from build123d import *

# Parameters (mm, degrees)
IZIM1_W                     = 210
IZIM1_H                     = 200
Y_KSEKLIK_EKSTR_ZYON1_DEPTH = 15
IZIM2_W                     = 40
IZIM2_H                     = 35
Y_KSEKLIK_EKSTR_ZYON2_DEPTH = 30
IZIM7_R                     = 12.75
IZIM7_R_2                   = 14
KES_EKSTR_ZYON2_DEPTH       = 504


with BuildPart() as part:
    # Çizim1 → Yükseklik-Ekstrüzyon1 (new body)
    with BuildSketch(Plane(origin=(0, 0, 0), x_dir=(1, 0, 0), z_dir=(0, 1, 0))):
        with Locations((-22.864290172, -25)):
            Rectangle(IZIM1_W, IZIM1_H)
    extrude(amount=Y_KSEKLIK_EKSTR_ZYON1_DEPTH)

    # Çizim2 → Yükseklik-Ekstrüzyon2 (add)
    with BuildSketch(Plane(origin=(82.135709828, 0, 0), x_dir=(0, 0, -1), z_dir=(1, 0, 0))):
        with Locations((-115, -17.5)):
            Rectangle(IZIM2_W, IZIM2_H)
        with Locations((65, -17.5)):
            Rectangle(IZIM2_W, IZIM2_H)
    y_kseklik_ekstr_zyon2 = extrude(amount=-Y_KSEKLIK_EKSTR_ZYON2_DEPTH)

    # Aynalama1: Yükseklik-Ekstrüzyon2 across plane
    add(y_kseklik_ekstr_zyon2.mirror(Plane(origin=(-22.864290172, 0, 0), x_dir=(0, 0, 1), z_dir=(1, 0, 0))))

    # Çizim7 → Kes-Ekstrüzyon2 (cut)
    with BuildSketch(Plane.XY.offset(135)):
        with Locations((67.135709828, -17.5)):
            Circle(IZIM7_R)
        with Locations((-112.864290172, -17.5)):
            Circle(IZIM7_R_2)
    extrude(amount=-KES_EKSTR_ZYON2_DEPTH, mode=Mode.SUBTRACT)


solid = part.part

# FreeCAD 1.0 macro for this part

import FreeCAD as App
import Part
import Sketcher

V = App.Vector
Q = App.Units.Quantity


def add_polygon(sketch, points):
    """Adds a closed chain of lines whose ends are joined by coincident constraints."""
    first, n = sketch.GeometryCount, len(points)
    for a, b in zip(points, points[1:] + points[:1]):
        sketch.addGeometry(Part.LineSegment(App.Vector(*a, 0), App.Vector(*b, 0)), False)
    for i in range(n):
        sketch.addConstraint(Sketcher.Constraint("Coincident", first + i, 2, first + (i + 1) % n, 1))

doc = App.newDocument("Part")
body = doc.addObject("PartDesign::Body", "Body")

# Sketch on XZ plane
sketch1 = body.newObject("Sketcher::SketchObject", "Sketch")
sketch1.AttachmentSupport = (doc.getObject("XZ_Plane"), [""])
sketch1.MapMode = "FlatFace"
add_polygon(sketch1, [(-127.86429, -75), (-127.86429, 125), (82.13571, 125), (82.13571, -75)])  # lines 0-3
sketch1.addConstraint(Sketcher.Constraint("Vertical", 0))
sketch1.addConstraint(Sketcher.Constraint("Horizontal", 1))
sketch1.addConstraint(Sketcher.Constraint("Vertical", 2))
sketch1.addConstraint(Sketcher.Constraint("Horizontal", 3))
sketch1.addConstraint(Sketcher.Constraint("DistanceX", 1, 1, 1, 2, Q("210 mm")))
sketch1.addConstraint(Sketcher.Constraint("DistanceY", 0, 1, 0, 2, Q("200 mm")))
sketch1.addConstraint(Sketcher.Constraint("DistanceY", -1, 1, 0, 2, Q("125 mm")))
sketch1.addConstraint(Sketcher.Constraint("DistanceX", 0, 2, -1, 1, Q("127.86429 mm")))
pad1 = body.newObject("PartDesign::Pad", "Pad")
pad1.Profile = sketch1
pad1.Length = 15
pad1.Reversed = True

# Sketch on YZ plane
sketch2 = body.newObject("Sketcher::SketchObject", "Sketch001")
sketch2.AttachmentSupport = (doc.getObject("YZ_Plane"), [""])
sketch2.MapMode = "FlatFace"
sketch2.AttachmentOffset = App.Placement(V(0, 0, 82.13571), App.Rotation())
add_polygon(sketch2, [(0, 135), (-35, 135), (-35, 95), (0, 95)])  # lines 0-3
add_polygon(sketch2, [(0, -45), (-35, -45), (-35, -85), (0, -85)])  # lines 4-7
sketch2.addConstraint(Sketcher.Constraint("Horizontal", 0))
sketch2.addConstraint(Sketcher.Constraint("Vertical", 1))
sketch2.addConstraint(Sketcher.Constraint("Horizontal", 2))
sketch2.addConstraint(Sketcher.Constraint("Vertical", 3))
sketch2.addConstraint(Sketcher.Constraint("Horizontal", 4))
sketch2.addConstraint(Sketcher.Constraint("Vertical", 5))
sketch2.addConstraint(Sketcher.Constraint("Horizontal", 6))
sketch2.addConstraint(Sketcher.Constraint("Vertical", 7))
sketch2.addConstraint(Sketcher.Constraint("PointOnObject", 2, 2, -2))
sketch2.addConstraint(Sketcher.Constraint("PointOnObject", 6, 2, -2))
sketch2.addConstraint(Sketcher.Constraint("Vertical", 1, 2, 4, 2))
sketch2.addConstraint(Sketcher.Constraint("Equal", 3, 5))
sketch2.addConstraint(Sketcher.Constraint("DistanceX", 0, 2, 0, 1, Q("35 mm")))
sketch2.addConstraint(Sketcher.Constraint("DistanceY", 1, 2, 1, 1, Q("40 mm")))
sketch2.addConstraint(Sketcher.Constraint("DistanceY", -1, 1, 0, 2, Q("135 mm")))
sketch2.addConstraint(Sketcher.Constraint("DistanceY", 4, 2, -1, 1, Q("45 mm")))
pad2 = body.newObject("PartDesign::Pad", "Pad001")
pad2.Profile = sketch2
pad2.Length = 30
pad2.Reversed = True
doc.recompute()

datumplane = body.newObject("PartDesign::Plane", "DatumPlane")
datumplane.AttachmentSupport = (doc.getObject("YZ_Plane"), [""])
datumplane.MapMode = "FlatFace"
datumplane.AttachmentOffset = App.Placement(V(0, 0, -22.86429), App.Rotation())
mirrored = body.newObject("PartDesign::Mirrored", "Mirrored")
mirrored.Originals = [pad2]
mirrored.MirrorPlane = (datumplane, [""])
body.Tip = mirrored

# Sketch on XY plane
sketch3 = body.newObject("Sketcher::SketchObject", "Sketch002")
sketch3.AttachmentSupport = (doc.getObject("XY_Plane"), [""])
sketch3.MapMode = "FlatFace"
sketch3.AttachmentOffset = App.Placement(V(0, 0, 135), App.Rotation())
sketch3.addGeometry(Part.Circle(V(67.13571, -17.5, 0), V(0, 0, 1), 12.75), False)
sketch3.addGeometry(Part.Circle(V(-112.86429, -17.5, 0), V(0, 0, 1), 14), False)
sketch3.addConstraint(Sketcher.Constraint("Horizontal", 0, 3, 1, 3))
sketch3.addConstraint(Sketcher.Constraint("Diameter", 1, Q("28 mm")))
sketch3.addConstraint(Sketcher.Constraint("Diameter", 0, Q("25.5 mm")))
sketch3.addConstraint(Sketcher.Constraint("DistanceX", 1, 3, 0, 3, Q("180 mm")))
sketch3.addConstraint(Sketcher.Constraint("DistanceY", 0, 3, -1, 1, Q("17.5 mm")))
sketch3.addConstraint(Sketcher.Constraint("DistanceX", -1, 1, 0, 3, Q("67.13571 mm")))
pocket1 = body.newObject("PartDesign::Pocket", "Pocket")
pocket1.Profile = sketch3
pocket1.Length = 504

doc.recompute()
